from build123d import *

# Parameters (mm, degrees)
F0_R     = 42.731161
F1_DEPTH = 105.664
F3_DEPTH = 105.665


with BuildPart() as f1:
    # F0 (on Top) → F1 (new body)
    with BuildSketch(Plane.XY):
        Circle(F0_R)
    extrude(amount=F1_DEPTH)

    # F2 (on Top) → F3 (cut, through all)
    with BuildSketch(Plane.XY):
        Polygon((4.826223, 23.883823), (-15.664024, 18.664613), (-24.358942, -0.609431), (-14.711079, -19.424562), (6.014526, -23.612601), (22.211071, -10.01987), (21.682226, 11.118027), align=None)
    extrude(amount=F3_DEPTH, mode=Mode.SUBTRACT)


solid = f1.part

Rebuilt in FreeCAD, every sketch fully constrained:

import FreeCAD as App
import Part
import Sketcher

V = App.Vector

doc = App.newDocument("Part")
params = doc.addObject("Spreadsheet::Sheet", "Params")
for row, (alias, value) in enumerate([
    ("pad1_length", "4.16 in"),
], start=1):
    params.set(f"A{row}", alias)
    params.set(f"B{row}", "=" + value)
    params.setAlias(f"B{row}", alias)

body = doc.addObject("PartDesign::Body", "Body")

sketch1 = body.newObject("Sketcher::SketchObject", "Sketch")
sketch1.AttachmentSupport = (doc.getObject("XY_Plane"), [""])
sketch1.MapMode = "FlatFace"
sketch1.addGeometry(Part.Circle(V(0, 0, 0), V(0, 0, 1), 43), False)
sketch1.addConstraint([
    Sketcher.Constraint("Coincident", 0, 3, -1, 1),
    Sketcher.Constraint("Diameter", 0, 85.462322),
])
pad1 = body.newObject("PartDesign::Pad", "Pad")
pad1.Profile = sketch1
pad1.setExpression("Length", "Params.pad1_length")

sketch2 = body.newObject("Sketcher::SketchObject", "Sketch001")
sketch2.AttachmentSupport = (doc.getObject("XY_Plane"), [""])
sketch2.MapMode = "FlatFace"
sketch2.addGeometry([
    Part.LineSegment(V(5, 24, 0), V(-16, 19, 0)),
    Part.LineSegment(V(-16, 19, 0), V(-24, -1, 0)),
    Part.LineSegment(V(-24, -1, 0), V(-15, -19, 0)),
    Part.LineSegment(V(-15, -19, 0), V(6, -24, 0)),
    Part.LineSegment(V(6, -24, 0), V(22, -10, 0)),
    Part.LineSegment(V(22, -10, 0), V(22, 11, 0)),
    Part.LineSegment(V(22, 11, 0), V(5, 24, 0)),
], False)
sketch2.addConstraint([
    Sketcher.Constraint("Coincident", 0, 2, 1, 1),
    Sketcher.Constraint("Coincident", 1, 2, 2, 1),
    Sketcher.Constraint("Coincident", 2, 2, 3, 1),
    Sketcher.Constraint("Coincident", 3, 2, 4, 1),
    Sketcher.Constraint("Coincident", 4, 2, 5, 1),
    Sketcher.Constraint("Coincident", 5, 2, 6, 1),
    Sketcher.Constraint("Coincident", 6, 2, 0, 1),
    Sketcher.Constraint("Equal", 0, 1),
    Sketcher.Constraint("Equal", 1, 2),
    Sketcher.Constraint("Equal", 2, 3),
    Sketcher.Constraint("Equal", 3, 4),
    Sketcher.Constraint("Equal", 4, 5),
    Sketcher.Constraint("Equal", 5, 6),
    Sketcher.Constraint("DistanceY", 3, 2, -1, 1, 23.612601),
    Sketcher.Constraint("DistanceX", 3, 2, 5, 2, 15.6677),
    Sketcher.Constraint("Distance", 0, 21.144512),
    Sketcher.Constraint("DistanceX", 1, 2, -1, 1, 24.358942),
    Sketcher.Constraint("DistanceY", 1, 2, -1, 1, 0.609431),
    Sketcher.Constraint("DistanceX", 2, 2, -1, 1, 14.711079),
    Sketcher.Constraint("DistanceX", -1, 1, 4, 2, 22.211071),
    Sketcher.Constraint("DistanceX", 0, 2, 3, 2, 21.67855),
])
pocket1 = body.newObject("PartDesign::Pocket", "Pocket")
pocket1.Profile = sketch2
pocket1.Type = "ThroughAll"
pocket1.Reversed = True

doc.recompute()
